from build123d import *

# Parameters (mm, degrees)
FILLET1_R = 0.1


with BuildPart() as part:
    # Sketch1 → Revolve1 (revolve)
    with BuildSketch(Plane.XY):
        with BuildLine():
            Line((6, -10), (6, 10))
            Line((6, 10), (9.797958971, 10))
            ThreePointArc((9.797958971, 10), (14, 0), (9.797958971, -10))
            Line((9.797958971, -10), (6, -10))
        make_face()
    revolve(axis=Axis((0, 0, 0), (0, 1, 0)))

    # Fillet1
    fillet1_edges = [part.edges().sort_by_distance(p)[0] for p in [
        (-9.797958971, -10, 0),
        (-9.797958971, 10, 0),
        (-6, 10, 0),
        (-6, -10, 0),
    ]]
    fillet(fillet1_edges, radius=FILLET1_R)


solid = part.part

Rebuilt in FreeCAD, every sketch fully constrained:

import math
import FreeCAD as App
import Part
import Sketcher


def edges_at(feature, points):
    """Names of the edges that pass closest to the given points."""
    edges = feature.Shape.Edges
    near = lambda p: min(range(len(edges)), key=lambda i: edges[i].distToShape(Part.Vertex(*p))[0])
    return sorted({f"Edge{near(p) + 1}" for p in points})

doc = App.newDocument("Part")
body = doc.addObject("PartDesign::Body", "Body")

# Sketch on XY plane
sketch1 = doc.addObject("Sketcher::SketchObject", "Sketch")
body.addObject(sketch1)
sketch1.AttachmentSupport = (doc.XY_Plane, [""])
sketch1.MapMode = "FlatFace"
sketch1.addGeometry(Part.LineSegment(App.Vector(6, 10, 0), App.Vector(6, -10, 0)), False)
sketch1.addGeometry(Part.LineSegment(App.Vector(6, -10, 0), App.Vector(9.797959, -10, 0)), False)
sketch1.addGeometry(Part.ArcOfCircle(Part.Circle(App.Vector(0, 0, 0), App.Vector(0, 0, 1), 14), math.radians(-45.584691), math.radians(45.584691)), False)
sketch1.addGeometry(Part.LineSegment(App.Vector(9.797959, 10, 0), App.Vector(6, 10, 0)), False)
sketch1.addConstraint(Sketcher.Constraint("Coincident", 0, 2, 1, 1))
sketch1.addConstraint(Sketcher.Constraint("Coincident", 1, 2, 2, 1))
sketch1.addConstraint(Sketcher.Constraint("Coincident", 2, 2, 3, 1))
sketch1.addConstraint(Sketcher.Constraint("Coincident", 3, 2, 0, 1))
sketch1.addConstraint(Sketcher.Constraint("Vertical", 0))
sketch1.addConstraint(Sketcher.Constraint("Horizontal", 1))
sketch1.addConstraint(Sketcher.Constraint("Horizontal", 3))
sketch1.addConstraint(Sketcher.Constraint("Coincident", 2, 3, -1, 1))
sketch1.addConstraint(Sketcher.Constraint("Vertical", 1, 2, 2, 2))
sketch1.addConstraint(Sketcher.Constraint("Radius", 2, 14.0))
sketch1.addConstraint(Sketcher.Constraint("DistanceY", 0, 2, 0, 1, 20.0))
sketch1.addConstraint(Sketcher.Constraint("DistanceX", -1, 1, 0, 2, 6.0))
revolution = doc.addObject("PartDesign::Revolution", "Revolution")
body.addObject(revolution)
revolution.Profile = sketch1
revolution.ReferenceAxis = (sketch1, ["V_Axis"])
revolution.Angle = 360
doc.recompute()

fillet = doc.addObject("PartDesign::Fillet", "Fillet")
body.addObject(fillet)
fillet.Base = (revolution, edges_at(revolution, [
    (-9.798, -10, 0),
    (-9.798, 10, 0),
    (-6, 10, 0),
    (-6, -10, 0),
]))
fillet.Radius = 0.1

doc.recompute()
